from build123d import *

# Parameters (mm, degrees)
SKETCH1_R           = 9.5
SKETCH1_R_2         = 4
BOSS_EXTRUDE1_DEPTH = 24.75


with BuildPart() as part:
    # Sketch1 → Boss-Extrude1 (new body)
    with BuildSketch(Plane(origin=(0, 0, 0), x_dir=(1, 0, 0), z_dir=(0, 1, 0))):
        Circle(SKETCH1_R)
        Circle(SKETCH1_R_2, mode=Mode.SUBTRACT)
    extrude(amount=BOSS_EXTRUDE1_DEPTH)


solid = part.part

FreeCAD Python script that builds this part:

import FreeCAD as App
import Part
import Sketcher
from FreeCAD import Vector
Q = App.Units.Quantity

doc = App.newDocument("Part")
params = doc.addObject("Spreadsheet::Sheet", "Params")
for row, (alias, value) in enumerate([
    ("sketch1_diameter", "19 mm"),
    ("sketch1_diameter2", "8 mm"),
    ("pad1_length", "24.75 mm"),
], start=1):
    params.set(f"A{row}", alias)
    params.set(f"B{row}", "=" + value)
    params.setAlias(f"B{row}", alias)

body = doc.addObject("PartDesign::Body", "Body")

# Sketch on XZ plane
sketch1 = body.newObject("Sketcher::SketchObject", "Sketch")
sketch1.AttachmentSupport = (doc.getObject("XZ_Plane"), [""])
sketch1.MapMode = "FlatFace"
sketch1.addGeometry([
    Part.Circle(Vector(0, 0, 0), Vector(0, 0, 1), 9.5),
    Part.Circle(Vector(0, 0, 0), Vector(0, 0, 1), 4),
], False)
sketch1.addConstraint([
    Sketcher.Constraint("Coincident", 0, 3, -1, 1),
    Sketcher.Constraint("Coincident", 1, 3, -1, 1),
    Sketcher.Constraint("Diameter", 0, Q("19 mm")),
    Sketcher.Constraint("Diameter", 1, Q("8 mm")),
])
sketch1.setExpression("Constraints[2]", "Params.sketch1_diameter")
sketch1.setExpression("Constraints[3]", "Params.sketch1_diameter2")
pad1 = body.newObject("PartDesign::Pad", "Pad")
pad1.Profile = sketch1
pad1.setExpression("Length", "Params.pad1_length")
pad1.Reversed = True

doc.recompute()
